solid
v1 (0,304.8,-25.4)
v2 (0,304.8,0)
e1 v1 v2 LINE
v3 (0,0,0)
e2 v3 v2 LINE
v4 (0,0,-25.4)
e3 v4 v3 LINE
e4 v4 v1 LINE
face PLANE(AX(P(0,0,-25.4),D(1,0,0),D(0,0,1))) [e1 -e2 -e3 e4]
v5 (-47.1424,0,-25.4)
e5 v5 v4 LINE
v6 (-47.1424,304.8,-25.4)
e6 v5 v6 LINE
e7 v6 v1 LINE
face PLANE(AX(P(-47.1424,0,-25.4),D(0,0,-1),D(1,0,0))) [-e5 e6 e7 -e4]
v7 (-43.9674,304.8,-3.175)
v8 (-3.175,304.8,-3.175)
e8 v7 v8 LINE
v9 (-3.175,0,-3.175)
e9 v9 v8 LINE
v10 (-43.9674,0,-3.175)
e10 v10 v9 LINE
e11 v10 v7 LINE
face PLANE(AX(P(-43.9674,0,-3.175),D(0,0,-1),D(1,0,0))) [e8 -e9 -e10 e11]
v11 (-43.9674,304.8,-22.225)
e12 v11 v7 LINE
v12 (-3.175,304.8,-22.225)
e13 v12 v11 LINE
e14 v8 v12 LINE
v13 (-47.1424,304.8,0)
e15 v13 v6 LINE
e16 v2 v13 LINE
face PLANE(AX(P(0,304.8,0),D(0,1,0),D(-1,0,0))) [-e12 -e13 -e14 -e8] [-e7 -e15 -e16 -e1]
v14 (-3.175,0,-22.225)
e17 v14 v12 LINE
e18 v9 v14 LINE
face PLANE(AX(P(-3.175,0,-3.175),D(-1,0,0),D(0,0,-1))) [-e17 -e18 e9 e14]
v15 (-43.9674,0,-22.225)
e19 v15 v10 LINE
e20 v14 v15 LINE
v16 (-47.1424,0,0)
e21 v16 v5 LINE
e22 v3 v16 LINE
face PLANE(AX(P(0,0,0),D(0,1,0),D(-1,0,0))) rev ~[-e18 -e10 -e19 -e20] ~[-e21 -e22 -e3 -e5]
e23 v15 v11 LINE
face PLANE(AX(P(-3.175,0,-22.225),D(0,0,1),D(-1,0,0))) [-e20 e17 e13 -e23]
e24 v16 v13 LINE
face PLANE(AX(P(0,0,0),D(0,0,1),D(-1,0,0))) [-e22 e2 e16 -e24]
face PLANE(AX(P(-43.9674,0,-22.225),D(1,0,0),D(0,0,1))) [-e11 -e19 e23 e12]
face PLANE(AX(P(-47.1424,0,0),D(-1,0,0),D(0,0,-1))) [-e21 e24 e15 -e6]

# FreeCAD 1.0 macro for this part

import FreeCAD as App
import Part
import Sketcher
from FreeCAD import Vector
Q = App.Units.Quantity


def add_polygon(sketch, points):
    """Adds a closed chain of lines whose ends are joined by coincident constraints."""
    first, n = sketch.GeometryCount, len(points)
    for a, b in zip(points, points[1:] + points[:1]):
        sketch.addGeometry(Part.LineSegment(App.Vector(*a, 0), App.Vector(*b, 0)), False)
    for i in range(n):
        sketch.addConstraint(Sketcher.Constraint("Coincident", first + i, 2, first + (i + 1) % n, 1))

doc = App.newDocument("Part")
params = doc.addObject("Spreadsheet::Sheet", "Params")
for row, (alias, value) in enumerate([
    ("sketch1_height", "1 in"),
    ("sketch1_width", "1.856 in"),
    ("pad1_length", "12 in"),
], start=1):
    params.set(f"A{row}", alias)
    params.set(f"B{row}", "=" + value)
    params.setAlias(f"B{row}", alias)

body = doc.addObject("PartDesign::Body", "Body")

sketch1 = body.newObject("Sketcher::SketchObject", "Sketch")
sketch1.AttachmentSupport = (doc.getObject("XZ_Plane"), [""])
sketch1.MapMode = "FlatFace"
add_polygon(sketch1, [(-47, 0), (0, 0), (0, -25), (-47, -25)])
add_polygon(sketch1, [(-3, -3), (-44, -3), (-44, -22), (-3, -22)])
sketch1.addConstraint(Sketcher.Constraint("Horizontal", 0))
sketch1.addConstraint(Sketcher.Constraint("Vertical", 1))
sketch1.addConstraint(Sketcher.Constraint("Horizontal", 2))
sketch1.addConstraint(Sketcher.Constraint("Vertical", 3))
sketch1.addConstraint(Sketcher.Constraint("Horizontal", 4))
sketch1.addConstraint(Sketcher.Constraint("Vertical", 5))
sketch1.addConstraint(Sketcher.Constraint("Horizontal", 6))
sketch1.addConstraint(Sketcher.Constraint("Vertical", 7))
sketch1.addConstraint(Sketcher.Constraint("Coincident", 0, 2, -1, 1))
sketch1.addConstraint(Sketcher.Constraint("DistanceY", 1, 2, 1, 1, Q("1 in")))
sketch1.addConstraint(Sketcher.Constraint("DistanceX", 0, 1, 0, 2, Q("1.856 in")))
sketch1.addConstraint(Sketcher.Constraint("DistanceY", 4, 2, -1, 1, Q("0.125 in")))
sketch1.addConstraint(Sketcher.Constraint("DistanceX", 6, 2, -1, 1, Q("0.125 in")))
sketch1.addConstraint(Sketcher.Constraint("DistanceX", 3, 2, 4, 2, Q("0.125 in")))
sketch1.addConstraint(Sketcher.Constraint("DistanceY", 2, 2, 5, 2, Q("0.125 in")))
sketch1.setExpression("Constraints[17]", "Params.sketch1_height")
sketch1.setExpression("Constraints[18]", "Params.sketch1_width")
pad1 = body.newObject("PartDesign::Pad", "Pad")
pad1.Profile = sketch1
pad1.setExpression("Length", "Params.pad1_length")
pad1.Reversed = True

doc.recompute()
